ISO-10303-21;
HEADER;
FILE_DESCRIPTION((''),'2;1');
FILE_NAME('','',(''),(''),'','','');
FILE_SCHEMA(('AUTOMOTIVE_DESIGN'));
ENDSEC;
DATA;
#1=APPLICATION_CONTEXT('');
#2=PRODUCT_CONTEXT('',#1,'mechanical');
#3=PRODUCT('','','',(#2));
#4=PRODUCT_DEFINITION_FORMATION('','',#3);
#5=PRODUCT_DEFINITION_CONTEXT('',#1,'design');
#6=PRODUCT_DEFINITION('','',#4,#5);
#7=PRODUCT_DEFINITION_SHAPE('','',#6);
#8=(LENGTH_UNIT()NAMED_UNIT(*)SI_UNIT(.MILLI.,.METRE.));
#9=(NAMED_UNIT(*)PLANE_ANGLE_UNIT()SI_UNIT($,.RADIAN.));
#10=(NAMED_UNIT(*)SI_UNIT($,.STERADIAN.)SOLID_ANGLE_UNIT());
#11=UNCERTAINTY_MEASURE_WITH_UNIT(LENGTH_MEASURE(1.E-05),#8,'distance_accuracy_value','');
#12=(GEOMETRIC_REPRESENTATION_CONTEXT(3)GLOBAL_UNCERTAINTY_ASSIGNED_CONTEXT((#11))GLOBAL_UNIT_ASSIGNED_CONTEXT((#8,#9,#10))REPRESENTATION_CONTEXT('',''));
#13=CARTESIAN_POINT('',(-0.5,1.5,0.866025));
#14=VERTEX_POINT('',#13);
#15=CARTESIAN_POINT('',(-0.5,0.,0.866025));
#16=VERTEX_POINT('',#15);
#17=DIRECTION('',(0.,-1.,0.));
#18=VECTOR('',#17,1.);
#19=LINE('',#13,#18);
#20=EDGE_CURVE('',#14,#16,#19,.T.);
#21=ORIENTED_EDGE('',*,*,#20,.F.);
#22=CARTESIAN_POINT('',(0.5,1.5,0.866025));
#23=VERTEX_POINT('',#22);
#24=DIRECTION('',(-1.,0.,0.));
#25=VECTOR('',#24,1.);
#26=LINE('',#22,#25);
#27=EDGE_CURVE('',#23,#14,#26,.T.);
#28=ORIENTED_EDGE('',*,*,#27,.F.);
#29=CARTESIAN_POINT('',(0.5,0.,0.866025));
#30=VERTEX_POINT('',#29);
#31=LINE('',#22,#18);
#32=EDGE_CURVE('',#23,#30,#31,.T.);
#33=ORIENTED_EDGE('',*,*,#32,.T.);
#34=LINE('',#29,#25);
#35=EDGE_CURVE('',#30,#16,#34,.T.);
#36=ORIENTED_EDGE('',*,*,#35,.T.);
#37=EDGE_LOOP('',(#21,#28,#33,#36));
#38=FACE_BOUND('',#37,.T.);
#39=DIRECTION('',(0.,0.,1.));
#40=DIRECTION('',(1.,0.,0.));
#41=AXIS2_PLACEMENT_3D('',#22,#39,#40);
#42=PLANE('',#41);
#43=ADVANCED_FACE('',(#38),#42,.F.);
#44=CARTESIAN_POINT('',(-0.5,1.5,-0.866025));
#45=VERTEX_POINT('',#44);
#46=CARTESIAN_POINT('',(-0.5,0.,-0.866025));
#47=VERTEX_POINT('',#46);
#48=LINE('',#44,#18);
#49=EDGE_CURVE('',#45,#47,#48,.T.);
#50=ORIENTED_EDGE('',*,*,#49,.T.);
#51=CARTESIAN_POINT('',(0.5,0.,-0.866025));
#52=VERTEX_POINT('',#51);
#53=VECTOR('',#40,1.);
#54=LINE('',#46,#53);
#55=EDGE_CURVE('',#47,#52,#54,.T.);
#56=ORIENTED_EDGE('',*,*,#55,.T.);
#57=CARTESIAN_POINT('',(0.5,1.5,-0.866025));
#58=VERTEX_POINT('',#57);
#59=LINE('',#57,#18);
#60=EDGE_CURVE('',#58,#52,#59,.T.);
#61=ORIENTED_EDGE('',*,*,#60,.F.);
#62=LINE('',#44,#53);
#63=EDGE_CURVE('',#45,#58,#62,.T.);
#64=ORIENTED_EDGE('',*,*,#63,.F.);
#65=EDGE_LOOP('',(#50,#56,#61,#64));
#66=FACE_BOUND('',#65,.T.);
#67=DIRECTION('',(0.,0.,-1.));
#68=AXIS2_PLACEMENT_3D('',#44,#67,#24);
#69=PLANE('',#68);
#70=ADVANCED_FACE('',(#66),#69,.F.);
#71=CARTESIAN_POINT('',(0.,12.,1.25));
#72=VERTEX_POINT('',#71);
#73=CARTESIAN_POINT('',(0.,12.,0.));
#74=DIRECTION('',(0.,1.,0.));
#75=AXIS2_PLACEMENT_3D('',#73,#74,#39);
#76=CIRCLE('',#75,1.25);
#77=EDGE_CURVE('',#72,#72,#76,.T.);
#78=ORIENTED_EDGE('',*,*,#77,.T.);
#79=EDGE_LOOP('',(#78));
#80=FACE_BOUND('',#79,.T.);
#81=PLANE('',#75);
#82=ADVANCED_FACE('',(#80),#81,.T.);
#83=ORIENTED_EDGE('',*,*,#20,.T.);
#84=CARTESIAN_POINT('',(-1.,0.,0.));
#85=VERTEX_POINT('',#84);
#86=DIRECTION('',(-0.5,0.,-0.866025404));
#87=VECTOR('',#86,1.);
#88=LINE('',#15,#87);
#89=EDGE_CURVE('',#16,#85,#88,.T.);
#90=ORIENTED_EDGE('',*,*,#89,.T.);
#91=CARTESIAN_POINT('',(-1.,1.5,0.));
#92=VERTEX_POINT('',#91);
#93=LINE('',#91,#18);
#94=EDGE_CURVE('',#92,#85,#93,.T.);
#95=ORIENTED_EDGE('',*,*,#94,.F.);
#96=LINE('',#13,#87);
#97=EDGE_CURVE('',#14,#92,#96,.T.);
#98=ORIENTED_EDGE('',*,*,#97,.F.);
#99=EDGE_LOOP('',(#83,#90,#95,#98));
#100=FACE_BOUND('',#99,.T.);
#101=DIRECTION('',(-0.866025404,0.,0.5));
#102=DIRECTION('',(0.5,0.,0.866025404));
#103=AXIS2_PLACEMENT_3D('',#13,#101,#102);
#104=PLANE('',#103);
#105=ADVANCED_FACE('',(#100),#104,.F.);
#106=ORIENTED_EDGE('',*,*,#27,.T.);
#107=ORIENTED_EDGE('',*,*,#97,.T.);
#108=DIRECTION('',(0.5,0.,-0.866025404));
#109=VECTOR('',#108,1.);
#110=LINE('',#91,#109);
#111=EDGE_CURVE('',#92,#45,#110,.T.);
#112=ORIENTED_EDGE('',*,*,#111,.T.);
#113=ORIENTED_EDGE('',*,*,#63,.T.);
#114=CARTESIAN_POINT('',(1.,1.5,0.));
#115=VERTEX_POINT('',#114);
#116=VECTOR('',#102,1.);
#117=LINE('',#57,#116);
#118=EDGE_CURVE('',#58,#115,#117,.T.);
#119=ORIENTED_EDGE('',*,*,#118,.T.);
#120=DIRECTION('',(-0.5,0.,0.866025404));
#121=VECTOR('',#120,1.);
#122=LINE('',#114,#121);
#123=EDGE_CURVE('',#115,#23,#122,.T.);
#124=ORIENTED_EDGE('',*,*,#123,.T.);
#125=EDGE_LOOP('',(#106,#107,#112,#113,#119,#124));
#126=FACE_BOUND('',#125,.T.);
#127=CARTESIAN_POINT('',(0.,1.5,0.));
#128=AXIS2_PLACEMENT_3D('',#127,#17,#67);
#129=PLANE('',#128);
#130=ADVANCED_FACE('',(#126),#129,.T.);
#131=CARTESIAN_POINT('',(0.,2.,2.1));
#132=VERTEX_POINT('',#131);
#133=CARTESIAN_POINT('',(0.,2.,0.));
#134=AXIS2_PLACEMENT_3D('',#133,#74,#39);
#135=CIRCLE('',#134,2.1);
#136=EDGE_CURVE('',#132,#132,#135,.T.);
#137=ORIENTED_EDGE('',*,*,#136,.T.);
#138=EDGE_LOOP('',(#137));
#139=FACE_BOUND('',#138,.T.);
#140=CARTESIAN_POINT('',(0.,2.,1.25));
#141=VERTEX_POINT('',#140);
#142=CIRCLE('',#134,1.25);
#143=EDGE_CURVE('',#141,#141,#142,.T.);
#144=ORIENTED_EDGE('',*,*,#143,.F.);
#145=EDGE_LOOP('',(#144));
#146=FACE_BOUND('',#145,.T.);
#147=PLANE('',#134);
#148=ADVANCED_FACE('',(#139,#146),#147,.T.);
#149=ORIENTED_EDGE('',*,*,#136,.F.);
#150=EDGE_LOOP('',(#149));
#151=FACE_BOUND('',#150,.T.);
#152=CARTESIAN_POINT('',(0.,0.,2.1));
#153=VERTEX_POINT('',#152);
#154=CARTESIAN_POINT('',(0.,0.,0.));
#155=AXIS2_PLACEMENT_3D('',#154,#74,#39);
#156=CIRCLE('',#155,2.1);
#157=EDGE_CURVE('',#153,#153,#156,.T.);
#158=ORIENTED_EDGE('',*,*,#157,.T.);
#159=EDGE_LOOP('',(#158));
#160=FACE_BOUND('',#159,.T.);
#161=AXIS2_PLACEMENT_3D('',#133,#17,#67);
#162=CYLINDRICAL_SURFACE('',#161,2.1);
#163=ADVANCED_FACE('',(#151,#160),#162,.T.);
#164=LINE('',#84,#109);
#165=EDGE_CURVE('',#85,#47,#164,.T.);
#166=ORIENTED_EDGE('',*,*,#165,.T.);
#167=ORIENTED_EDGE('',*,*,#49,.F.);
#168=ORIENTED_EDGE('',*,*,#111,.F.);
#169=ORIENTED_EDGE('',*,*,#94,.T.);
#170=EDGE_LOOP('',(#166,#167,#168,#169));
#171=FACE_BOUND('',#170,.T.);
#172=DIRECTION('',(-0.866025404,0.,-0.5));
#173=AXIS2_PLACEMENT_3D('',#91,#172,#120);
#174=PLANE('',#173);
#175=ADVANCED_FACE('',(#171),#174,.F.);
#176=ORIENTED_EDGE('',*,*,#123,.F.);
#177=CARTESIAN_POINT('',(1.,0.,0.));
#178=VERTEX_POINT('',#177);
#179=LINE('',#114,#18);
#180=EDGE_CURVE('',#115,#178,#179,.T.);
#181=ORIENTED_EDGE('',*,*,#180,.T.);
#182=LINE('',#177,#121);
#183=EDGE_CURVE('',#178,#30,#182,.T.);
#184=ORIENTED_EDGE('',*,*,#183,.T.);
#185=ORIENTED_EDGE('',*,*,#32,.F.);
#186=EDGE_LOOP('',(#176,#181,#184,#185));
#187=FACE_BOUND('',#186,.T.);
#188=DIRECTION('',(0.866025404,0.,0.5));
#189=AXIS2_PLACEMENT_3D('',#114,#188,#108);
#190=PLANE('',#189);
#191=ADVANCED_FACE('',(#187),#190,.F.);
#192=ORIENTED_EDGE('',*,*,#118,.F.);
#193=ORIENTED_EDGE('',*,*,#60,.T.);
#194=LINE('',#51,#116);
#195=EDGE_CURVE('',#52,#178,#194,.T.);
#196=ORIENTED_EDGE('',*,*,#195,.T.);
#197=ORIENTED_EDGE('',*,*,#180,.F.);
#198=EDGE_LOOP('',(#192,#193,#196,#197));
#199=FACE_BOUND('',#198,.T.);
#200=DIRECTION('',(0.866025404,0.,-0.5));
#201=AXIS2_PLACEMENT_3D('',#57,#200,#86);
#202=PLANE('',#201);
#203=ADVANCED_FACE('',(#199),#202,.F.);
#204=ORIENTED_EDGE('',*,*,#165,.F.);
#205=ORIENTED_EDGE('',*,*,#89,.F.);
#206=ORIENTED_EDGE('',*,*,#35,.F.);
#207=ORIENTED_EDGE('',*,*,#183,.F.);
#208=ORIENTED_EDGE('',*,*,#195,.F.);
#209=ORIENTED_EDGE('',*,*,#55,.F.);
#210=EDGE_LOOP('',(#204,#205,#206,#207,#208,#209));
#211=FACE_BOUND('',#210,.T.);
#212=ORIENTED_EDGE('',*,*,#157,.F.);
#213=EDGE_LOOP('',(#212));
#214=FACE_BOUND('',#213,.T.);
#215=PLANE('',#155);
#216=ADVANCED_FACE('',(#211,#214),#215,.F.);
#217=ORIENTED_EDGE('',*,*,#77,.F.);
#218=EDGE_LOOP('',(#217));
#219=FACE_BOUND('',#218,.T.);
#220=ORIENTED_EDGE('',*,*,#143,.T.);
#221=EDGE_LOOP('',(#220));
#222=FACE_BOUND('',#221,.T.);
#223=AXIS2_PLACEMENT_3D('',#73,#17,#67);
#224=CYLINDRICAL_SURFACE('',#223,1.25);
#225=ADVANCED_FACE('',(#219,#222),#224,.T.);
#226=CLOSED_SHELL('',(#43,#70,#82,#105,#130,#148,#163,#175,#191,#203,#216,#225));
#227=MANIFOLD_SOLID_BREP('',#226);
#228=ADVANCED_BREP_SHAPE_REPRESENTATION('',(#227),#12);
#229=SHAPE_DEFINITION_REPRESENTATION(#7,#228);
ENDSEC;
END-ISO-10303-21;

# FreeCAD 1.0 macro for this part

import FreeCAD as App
import Part
import Sketcher

V = App.Vector
Q = App.Units.Quantity

doc = App.newDocument("Part")
body = doc.addObject("PartDesign::Body", "Body")

# Sketch on XZ plane
sketch1 = body.newObject("Sketcher::SketchObject", "Sketch")
sketch1.AttachmentSupport = (doc.getObject("XZ_Plane"), [""])
sketch1.MapMode = "FlatFace"
sketch1.addGeometry(Part.Circle(V(0, 0, 0), V(0, 0, 1), 2.1), False)
sketch1.addConstraint(Sketcher.Constraint("Coincident", 0, 3, -1, 1))
sketch1.addConstraint(Sketcher.Constraint("Diameter", 0, Q("4.2 mm")))
pad1 = body.newObject("PartDesign::Pad", "Pad")
pad1.Profile = sketch1
pad1.Length = 2
pad1.Reversed = True

# Sketch on XZ plane
sketch2 = body.newObject("Sketcher::SketchObject", "Sketch001")
sketch2.AttachmentSupport = (doc.getObject("XZ_Plane"), [""])
sketch2.MapMode = "FlatFace"
sketch2.AttachmentOffset = App.Placement(V(0, 0, -2), App.Rotation())
sketch2.addGeometry(Part.Circle(V(0, 0, 0), V(0, 0, 1), 1.2), False)
sketch2.addConstraint(Sketcher.Constraint("Coincident", 0, 3, -1, 1))
sketch2.addConstraint(Sketcher.Constraint("Diameter", 0, Q("2.5 mm")))
pad2 = body.newObject("PartDesign::Pad", "Pad001")
pad2.Profile = sketch2
pad2.Length = 10
pad2.Reversed = True

# Sketch on XZ plane
sketch3 = body.newObject("Sketcher::SketchObject", "Sketch002")
sketch3.AttachmentSupport = (doc.getObject("XZ_Plane"), [""])
sketch3.MapMode = "FlatFace"
sketch3.addGeometry(Part.LineSegment(V(1, 0, 0), V(0.5, 0.9, 0)), False)
sketch3.addGeometry(Part.LineSegment(V(0.5, 0.9, 0), V(-0.5, 0.9, 0)), False)
sketch3.addGeometry(Part.LineSegment(V(-0.5, 0.9, 0), V(-1, 0, 0)), False)
sketch3.addGeometry(Part.LineSegment(V(-1, 0, 0), V(-0.5, -0.9, 0)), False)
sketch3.addGeometry(Part.LineSegment(V(-0.5, -0.9, 0), V(0.5, -0.9, 0)), False)
sketch3.addGeometry(Part.LineSegment(V(0.5, -0.9, 0), V(1, 0, 0)), False)
sketch3.addConstraint(Sketcher.Constraint("Coincident", 0, 2, 1, 1))
sketch3.addConstraint(Sketcher.Constraint("Coincident", 1, 2, 2, 1))
sketch3.addConstraint(Sketcher.Constraint("Coincident", 2, 2, 3, 1))
sketch3.addConstraint(Sketcher.Constraint("Coincident", 3, 2, 4, 1))
sketch3.addConstraint(Sketcher.Constraint("Coincident", 4, 2, 5, 1))
sketch3.addConstraint(Sketcher.Constraint("Coincident", 5, 2, 0, 1))
sketch3.addConstraint(Sketcher.Constraint("Horizontal", 1))
sketch3.addConstraint(Sketcher.Constraint("Horizontal", 4))
sketch3.addConstraint(Sketcher.Constraint("Symmetric", 0, 2, 3, 2, -1, 1))
sketch3.addConstraint(Sketcher.Constraint("Symmetric", 2, 2, 5, 2, -1, 1))
sketch3.addConstraint(Sketcher.Constraint("PointOnObject", 2, 2, -1))
sketch3.addConstraint(Sketcher.Constraint("Parallel", 2, 5))
sketch3.addConstraint(Sketcher.Constraint("Vertical", 1, 2, 3, 2))
sketch3.addConstraint(Sketcher.Constraint("DistanceX", 1, 2, 1, 1, Q("1 mm")))
sketch3.addConstraint(Sketcher.Constraint("Angle", 0, Q("120 deg")))
sketch3.addConstraint(Sketcher.Constraint("Distance", 0, Q("1 mm")))
pocket1 = body.newObject("PartDesign::Pocket", "Pocket")
pocket1.Profile = sketch3
pocket1.Length = 1.5

doc.recompute()
